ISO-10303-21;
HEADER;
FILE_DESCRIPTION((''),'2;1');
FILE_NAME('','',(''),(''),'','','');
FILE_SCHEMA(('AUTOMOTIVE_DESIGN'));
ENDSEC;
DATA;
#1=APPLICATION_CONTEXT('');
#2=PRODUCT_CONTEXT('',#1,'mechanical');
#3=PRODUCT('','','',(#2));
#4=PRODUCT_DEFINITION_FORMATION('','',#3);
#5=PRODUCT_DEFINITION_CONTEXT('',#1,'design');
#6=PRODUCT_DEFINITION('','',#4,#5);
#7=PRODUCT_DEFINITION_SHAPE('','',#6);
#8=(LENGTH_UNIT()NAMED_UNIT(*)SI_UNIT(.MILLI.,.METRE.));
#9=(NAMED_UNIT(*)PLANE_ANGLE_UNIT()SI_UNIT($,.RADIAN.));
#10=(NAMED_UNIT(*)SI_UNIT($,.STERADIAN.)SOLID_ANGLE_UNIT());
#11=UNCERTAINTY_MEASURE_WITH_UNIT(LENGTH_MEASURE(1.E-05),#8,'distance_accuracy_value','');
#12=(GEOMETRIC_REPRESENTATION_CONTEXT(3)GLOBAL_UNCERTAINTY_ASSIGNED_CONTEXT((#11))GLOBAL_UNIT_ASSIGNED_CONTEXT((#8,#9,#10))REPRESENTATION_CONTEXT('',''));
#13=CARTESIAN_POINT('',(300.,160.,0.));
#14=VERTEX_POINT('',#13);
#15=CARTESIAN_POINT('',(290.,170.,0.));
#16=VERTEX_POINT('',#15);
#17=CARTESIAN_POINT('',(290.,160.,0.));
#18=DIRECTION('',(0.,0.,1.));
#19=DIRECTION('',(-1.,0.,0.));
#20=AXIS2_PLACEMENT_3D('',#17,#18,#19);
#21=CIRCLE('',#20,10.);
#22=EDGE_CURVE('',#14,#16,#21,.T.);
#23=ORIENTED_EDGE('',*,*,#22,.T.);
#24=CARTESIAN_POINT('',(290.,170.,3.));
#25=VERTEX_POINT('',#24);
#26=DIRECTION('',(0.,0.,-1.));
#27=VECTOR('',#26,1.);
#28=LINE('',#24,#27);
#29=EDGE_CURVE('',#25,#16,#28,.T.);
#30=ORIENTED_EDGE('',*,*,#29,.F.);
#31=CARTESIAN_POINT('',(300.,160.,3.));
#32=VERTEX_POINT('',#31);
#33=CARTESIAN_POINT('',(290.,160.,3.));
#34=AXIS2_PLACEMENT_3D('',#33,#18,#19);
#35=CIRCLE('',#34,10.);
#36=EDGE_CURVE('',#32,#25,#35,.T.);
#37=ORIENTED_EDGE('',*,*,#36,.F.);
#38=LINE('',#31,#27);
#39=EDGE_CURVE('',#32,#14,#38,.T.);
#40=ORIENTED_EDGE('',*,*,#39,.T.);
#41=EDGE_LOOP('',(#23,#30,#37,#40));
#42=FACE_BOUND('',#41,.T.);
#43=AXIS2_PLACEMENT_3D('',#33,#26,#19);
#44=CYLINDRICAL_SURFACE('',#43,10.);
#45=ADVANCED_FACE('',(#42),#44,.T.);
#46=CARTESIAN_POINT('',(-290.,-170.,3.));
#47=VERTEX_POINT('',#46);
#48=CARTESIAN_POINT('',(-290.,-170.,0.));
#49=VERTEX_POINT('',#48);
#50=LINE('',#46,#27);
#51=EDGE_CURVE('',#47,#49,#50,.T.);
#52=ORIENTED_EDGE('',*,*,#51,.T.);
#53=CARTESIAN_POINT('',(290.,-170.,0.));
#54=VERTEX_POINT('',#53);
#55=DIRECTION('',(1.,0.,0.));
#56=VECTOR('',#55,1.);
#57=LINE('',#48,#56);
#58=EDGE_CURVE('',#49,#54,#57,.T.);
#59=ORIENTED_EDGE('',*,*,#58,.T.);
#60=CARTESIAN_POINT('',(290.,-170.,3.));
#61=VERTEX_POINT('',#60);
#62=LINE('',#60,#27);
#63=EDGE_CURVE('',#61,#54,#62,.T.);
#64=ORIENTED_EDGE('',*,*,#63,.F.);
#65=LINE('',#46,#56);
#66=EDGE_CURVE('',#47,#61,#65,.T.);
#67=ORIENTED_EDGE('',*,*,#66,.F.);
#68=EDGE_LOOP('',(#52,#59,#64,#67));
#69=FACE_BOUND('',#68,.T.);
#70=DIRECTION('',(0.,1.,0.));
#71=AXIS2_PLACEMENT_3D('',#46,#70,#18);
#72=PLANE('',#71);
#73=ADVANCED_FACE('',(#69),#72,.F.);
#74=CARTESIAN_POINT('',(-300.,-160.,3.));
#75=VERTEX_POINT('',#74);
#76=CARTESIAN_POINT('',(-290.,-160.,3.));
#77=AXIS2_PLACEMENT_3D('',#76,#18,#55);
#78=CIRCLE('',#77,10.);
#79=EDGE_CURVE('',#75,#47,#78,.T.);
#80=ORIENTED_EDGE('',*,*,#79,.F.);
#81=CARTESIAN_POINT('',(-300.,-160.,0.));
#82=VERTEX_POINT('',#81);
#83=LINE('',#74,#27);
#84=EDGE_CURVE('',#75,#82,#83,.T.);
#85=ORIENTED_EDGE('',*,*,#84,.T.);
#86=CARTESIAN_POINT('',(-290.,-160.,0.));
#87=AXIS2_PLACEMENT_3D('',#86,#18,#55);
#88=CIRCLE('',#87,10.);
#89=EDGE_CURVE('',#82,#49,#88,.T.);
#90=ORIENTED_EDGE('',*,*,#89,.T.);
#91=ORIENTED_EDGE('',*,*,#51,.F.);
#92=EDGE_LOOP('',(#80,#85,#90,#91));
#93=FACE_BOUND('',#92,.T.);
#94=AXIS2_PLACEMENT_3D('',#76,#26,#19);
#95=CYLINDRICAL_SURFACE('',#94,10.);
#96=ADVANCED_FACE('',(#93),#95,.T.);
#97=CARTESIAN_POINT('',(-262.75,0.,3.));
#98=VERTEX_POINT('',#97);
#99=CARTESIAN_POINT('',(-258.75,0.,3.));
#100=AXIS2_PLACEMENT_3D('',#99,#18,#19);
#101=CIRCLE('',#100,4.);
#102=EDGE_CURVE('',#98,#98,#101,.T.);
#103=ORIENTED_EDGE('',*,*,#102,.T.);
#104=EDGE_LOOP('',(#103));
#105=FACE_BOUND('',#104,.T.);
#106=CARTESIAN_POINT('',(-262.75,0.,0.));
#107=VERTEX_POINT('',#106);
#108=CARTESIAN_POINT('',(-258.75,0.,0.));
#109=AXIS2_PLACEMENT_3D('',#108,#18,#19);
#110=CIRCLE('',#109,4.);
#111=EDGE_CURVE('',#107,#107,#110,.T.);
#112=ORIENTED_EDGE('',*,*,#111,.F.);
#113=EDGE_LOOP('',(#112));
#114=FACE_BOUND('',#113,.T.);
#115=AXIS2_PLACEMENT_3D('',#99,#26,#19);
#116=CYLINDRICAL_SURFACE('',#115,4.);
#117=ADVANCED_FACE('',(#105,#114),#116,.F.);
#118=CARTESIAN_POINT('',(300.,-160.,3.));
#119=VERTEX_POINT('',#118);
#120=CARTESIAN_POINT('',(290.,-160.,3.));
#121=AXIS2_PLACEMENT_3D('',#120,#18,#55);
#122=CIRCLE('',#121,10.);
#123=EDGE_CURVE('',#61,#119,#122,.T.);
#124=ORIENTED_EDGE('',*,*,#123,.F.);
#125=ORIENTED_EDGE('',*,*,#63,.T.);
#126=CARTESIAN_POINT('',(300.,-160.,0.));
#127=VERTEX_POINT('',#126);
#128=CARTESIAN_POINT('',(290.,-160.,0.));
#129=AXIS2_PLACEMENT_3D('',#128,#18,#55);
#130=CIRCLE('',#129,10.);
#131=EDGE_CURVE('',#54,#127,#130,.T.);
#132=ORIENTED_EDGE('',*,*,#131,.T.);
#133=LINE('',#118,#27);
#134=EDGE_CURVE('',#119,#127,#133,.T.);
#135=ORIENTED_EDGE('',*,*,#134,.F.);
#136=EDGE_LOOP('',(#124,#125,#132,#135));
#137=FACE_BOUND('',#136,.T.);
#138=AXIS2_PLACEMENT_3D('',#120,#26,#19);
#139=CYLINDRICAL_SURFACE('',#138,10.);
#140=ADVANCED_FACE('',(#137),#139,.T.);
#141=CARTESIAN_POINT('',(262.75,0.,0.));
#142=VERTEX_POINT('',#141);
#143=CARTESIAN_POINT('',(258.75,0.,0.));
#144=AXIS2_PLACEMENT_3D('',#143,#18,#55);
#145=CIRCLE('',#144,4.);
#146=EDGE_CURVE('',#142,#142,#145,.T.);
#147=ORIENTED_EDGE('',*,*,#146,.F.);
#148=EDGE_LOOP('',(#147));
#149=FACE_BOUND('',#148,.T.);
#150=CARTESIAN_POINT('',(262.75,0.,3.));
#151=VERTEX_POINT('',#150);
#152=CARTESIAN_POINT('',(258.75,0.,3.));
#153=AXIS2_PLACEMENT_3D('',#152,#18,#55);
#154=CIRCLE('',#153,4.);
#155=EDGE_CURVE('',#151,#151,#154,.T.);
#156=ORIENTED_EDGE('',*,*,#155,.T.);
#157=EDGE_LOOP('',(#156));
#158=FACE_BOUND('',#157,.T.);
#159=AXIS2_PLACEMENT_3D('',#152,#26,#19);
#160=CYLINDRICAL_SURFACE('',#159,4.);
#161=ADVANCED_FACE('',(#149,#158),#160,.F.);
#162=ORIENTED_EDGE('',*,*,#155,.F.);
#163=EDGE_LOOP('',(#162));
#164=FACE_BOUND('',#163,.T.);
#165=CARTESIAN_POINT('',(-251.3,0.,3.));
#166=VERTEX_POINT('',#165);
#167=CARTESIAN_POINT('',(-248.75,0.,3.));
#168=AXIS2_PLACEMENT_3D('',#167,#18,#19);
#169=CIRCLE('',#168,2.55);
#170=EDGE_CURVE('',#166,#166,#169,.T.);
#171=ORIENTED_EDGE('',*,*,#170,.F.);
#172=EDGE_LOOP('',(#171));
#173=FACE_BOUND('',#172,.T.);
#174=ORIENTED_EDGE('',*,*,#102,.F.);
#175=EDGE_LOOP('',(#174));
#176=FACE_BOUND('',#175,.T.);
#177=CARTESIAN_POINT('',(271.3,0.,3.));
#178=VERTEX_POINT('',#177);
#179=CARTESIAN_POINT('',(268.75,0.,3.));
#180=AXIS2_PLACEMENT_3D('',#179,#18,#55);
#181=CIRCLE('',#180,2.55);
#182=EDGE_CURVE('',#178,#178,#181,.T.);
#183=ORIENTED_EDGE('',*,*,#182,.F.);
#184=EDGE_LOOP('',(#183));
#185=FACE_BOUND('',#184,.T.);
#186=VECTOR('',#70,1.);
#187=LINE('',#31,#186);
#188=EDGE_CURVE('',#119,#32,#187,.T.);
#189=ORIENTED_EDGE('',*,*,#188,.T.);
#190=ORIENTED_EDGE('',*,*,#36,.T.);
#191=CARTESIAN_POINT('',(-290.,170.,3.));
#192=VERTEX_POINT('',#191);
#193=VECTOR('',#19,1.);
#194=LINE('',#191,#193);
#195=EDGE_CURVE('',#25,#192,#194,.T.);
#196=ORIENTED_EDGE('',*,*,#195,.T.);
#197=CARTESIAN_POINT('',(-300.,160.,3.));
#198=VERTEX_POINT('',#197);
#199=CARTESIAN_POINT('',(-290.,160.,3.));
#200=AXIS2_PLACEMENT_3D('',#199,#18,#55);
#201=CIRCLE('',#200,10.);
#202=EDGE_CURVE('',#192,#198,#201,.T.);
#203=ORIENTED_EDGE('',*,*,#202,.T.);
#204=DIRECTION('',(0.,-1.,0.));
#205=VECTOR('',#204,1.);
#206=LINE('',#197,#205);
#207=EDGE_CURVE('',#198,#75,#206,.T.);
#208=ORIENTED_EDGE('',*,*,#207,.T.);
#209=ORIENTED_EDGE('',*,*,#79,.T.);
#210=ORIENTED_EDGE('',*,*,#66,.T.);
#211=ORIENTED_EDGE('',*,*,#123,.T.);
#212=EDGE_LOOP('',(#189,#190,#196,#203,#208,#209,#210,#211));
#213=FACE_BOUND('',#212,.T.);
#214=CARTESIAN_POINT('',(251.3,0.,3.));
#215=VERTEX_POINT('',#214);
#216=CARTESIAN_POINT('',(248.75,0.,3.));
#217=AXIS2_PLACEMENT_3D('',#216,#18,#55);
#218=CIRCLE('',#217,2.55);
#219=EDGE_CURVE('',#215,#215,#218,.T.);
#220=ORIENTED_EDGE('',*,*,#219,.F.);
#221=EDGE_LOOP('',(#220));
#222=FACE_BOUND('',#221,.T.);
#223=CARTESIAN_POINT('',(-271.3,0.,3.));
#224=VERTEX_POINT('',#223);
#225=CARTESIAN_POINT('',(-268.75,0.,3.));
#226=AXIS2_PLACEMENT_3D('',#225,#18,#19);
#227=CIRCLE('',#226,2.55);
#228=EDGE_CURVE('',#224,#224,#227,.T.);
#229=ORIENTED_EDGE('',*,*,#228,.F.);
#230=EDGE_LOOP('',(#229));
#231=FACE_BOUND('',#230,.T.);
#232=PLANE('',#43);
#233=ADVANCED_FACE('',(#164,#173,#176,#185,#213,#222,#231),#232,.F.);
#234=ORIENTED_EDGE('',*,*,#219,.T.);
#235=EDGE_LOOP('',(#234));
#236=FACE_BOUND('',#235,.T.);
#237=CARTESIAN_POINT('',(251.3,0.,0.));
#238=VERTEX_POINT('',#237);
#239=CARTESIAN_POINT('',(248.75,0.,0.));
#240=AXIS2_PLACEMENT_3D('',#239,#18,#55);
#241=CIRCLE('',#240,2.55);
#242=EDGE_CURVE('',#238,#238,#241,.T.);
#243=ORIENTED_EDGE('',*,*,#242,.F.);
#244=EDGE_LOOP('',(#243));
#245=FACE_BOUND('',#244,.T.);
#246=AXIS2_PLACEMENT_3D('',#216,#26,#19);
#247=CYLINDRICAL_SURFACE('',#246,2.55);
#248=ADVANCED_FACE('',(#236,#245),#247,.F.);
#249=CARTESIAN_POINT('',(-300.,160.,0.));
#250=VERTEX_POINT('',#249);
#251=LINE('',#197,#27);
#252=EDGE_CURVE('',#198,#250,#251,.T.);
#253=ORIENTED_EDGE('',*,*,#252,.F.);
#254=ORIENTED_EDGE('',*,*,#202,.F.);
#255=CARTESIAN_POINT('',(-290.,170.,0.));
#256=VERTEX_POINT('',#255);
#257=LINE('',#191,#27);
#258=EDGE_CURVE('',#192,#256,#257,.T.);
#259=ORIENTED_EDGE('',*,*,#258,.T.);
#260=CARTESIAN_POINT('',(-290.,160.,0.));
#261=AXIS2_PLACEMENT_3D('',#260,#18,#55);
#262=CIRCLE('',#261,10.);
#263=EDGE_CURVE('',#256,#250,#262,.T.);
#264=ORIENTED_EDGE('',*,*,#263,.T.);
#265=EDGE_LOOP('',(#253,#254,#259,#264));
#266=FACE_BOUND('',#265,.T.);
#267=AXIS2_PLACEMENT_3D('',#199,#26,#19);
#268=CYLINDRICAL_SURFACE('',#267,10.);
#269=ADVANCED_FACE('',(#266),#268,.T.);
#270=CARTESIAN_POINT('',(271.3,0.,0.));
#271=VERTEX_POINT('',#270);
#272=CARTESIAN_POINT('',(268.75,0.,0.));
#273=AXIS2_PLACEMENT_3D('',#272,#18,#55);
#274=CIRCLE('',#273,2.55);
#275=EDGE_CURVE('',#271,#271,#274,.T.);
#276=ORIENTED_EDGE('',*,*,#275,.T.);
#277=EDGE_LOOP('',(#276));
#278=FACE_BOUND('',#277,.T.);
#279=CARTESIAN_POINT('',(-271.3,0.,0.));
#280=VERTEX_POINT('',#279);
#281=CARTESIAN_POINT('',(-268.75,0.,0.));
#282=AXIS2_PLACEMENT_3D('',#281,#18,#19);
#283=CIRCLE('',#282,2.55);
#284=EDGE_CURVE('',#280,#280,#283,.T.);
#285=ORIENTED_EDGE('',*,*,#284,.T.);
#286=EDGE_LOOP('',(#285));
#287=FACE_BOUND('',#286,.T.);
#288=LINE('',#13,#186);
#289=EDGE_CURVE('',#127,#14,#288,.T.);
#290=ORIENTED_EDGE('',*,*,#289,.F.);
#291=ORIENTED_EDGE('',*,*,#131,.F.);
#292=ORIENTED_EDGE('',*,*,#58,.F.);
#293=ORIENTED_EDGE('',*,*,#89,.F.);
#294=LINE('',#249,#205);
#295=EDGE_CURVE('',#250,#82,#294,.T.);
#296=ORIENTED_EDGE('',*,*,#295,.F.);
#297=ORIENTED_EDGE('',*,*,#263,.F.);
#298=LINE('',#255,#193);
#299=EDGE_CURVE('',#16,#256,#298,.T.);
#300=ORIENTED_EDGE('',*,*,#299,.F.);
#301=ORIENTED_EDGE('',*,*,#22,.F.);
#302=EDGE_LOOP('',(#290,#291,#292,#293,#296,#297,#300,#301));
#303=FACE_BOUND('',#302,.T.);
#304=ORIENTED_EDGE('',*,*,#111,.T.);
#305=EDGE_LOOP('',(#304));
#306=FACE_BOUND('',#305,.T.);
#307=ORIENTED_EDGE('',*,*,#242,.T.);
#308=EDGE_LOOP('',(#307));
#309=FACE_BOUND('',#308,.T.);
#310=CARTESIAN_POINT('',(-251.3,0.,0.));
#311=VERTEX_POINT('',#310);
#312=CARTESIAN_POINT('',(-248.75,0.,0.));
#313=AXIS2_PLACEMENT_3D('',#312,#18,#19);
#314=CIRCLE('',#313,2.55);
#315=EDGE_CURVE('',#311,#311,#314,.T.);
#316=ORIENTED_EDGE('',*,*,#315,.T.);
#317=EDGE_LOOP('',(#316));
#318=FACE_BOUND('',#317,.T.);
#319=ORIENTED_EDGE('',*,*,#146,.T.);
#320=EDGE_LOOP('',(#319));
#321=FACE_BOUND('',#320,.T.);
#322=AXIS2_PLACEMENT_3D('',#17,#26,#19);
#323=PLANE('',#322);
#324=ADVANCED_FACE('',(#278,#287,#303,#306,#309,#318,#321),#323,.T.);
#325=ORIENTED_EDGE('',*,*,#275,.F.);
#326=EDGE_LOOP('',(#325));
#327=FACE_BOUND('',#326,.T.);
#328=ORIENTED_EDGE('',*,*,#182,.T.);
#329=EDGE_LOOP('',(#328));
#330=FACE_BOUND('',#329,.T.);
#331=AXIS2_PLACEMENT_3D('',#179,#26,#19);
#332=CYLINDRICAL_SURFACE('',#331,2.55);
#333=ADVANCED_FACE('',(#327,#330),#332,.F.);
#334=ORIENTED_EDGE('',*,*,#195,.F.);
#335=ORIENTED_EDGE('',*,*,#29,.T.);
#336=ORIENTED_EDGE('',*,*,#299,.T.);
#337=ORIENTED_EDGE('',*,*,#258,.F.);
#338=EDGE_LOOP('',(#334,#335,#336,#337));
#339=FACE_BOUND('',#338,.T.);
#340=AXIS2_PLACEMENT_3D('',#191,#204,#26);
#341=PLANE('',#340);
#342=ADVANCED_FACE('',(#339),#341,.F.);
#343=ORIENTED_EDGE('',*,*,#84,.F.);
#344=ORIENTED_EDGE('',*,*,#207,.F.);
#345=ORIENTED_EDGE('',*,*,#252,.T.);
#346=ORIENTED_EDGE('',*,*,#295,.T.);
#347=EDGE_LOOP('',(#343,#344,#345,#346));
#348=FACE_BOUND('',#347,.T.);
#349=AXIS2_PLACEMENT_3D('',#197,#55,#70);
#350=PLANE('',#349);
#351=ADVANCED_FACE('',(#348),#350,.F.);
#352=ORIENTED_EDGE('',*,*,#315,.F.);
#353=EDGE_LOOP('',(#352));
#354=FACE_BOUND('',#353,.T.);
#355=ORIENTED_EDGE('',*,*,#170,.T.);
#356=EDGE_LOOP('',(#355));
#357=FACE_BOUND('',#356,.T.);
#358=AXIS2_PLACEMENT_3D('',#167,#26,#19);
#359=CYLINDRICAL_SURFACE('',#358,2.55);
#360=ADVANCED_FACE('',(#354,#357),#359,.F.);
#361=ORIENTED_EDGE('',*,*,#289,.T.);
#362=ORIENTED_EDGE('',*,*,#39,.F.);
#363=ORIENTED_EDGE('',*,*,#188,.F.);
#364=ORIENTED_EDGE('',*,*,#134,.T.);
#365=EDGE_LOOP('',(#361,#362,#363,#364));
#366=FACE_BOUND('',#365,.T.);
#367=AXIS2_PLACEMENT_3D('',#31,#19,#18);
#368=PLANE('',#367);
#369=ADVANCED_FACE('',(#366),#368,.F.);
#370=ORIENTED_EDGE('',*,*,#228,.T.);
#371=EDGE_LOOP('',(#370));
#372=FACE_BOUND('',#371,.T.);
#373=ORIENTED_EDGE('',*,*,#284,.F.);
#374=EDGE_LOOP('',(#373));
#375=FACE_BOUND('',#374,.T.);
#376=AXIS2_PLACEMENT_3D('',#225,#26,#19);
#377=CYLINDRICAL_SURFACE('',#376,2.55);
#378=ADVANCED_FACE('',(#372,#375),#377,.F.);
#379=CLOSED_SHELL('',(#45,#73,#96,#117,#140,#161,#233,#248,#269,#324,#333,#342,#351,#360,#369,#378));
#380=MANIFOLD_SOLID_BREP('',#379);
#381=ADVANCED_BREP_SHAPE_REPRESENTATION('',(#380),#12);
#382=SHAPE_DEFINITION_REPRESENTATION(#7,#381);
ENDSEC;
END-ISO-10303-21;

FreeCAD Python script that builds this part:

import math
import FreeCAD as App
import Part
import Sketcher
from FreeCAD import Vector
Q = App.Units.Quantity

doc = App.newDocument("Part")
params = doc.addObject("Spreadsheet::Sheet", "Params")
for row, (alias, value) in enumerate([
    ("sketch1_diameter", "8 mm"),
    ("sketch1_radius", "10 mm"),
    ("sketch1_diameter2", "5.1 mm"),
    ("sketch1_width", "580 mm"),
    ("sketch1_height", "320 mm"),
    ("pad1_length", "3 mm"),
], start=1):
    params.set(f"A{row}", alias)
    params.set(f"B{row}", "=" + value)
    params.setAlias(f"B{row}", alias)

body = doc.addObject("PartDesign::Body", "Body")

# Sketch on XY plane
sketch1 = body.newObject("Sketcher::SketchObject", "Sketch")
sketch1.AttachmentSupport = (doc.getObject("XY_Plane"), [""])
sketch1.MapMode = "FlatFace"
sketch1.addGeometry(Part.LineSegment(Vector(290, 170, 0), Vector(-290, 170, 0)), False)
sketch1.addGeometry(Part.ArcOfCircle(Part.Circle(Vector(-290, 160, 0), Vector(0, 0, 1), 10), math.radians(90), math.radians(180)), False)
sketch1.addGeometry(Part.LineSegment(Vector(-300, 160, 0), Vector(-300, -160, 0)), False)
sketch1.addGeometry(Part.ArcOfCircle(Part.Circle(Vector(-290, -160, 0), Vector(0, 0, 1), 10), math.radians(180), math.radians(270)), False)
sketch1.addGeometry(Part.LineSegment(Vector(-290, -170, 0), Vector(290, -170, 0)), False)
sketch1.addGeometry(Part.ArcOfCircle(Part.Circle(Vector(290, -160, 0), Vector(0, 0, 1), 10), math.radians(-90), math.radians(0)), False)
sketch1.addGeometry(Part.LineSegment(Vector(300, -160, 0), Vector(300, 160, 0)), False)
sketch1.addGeometry(Part.ArcOfCircle(Part.Circle(Vector(290, 160, 0), Vector(0, 0, 1), 10), math.radians(0), math.radians(90)), False)
sketch1.addGeometry(Part.Circle(Vector(268.8, 0, 0), Vector(0, 0, 1), 2.5), False)
sketch1.addGeometry(Part.Circle(Vector(258.8, 0, 0), Vector(0, 0, 1), 4), False)
sketch1.addGeometry(Part.Circle(Vector(248.8, 0, 0), Vector(0, 0, 1), 2.5), False)
sketch1.addGeometry(Part.Circle(Vector(-248.8, 0, 0), Vector(0, 0, 1), 2.5), False)
sketch1.addGeometry(Part.Circle(Vector(-258.8, 0, 0), Vector(0, 0, 1), 4), False)
sketch1.addGeometry(Part.Circle(Vector(-268.8, 0, 0), Vector(0, 0, 1), 2.5), False)
sketch1.addConstraint(Sketcher.Constraint("Tangent", 0, 2, 1, 1))
sketch1.addConstraint(Sketcher.Constraint("Tangent", 1, 2, 2, 1))
sketch1.addConstraint(Sketcher.Constraint("Tangent", 2, 2, 3, 1))
sketch1.addConstraint(Sketcher.Constraint("Tangent", 3, 2, 4, 1))
sketch1.addConstraint(Sketcher.Constraint("Tangent", 4, 2, 5, 1))
sketch1.addConstraint(Sketcher.Constraint("Tangent", 5, 2, 6, 1))
sketch1.addConstraint(Sketcher.Constraint("Tangent", 6, 2, 7, 1))
sketch1.addConstraint(Sketcher.Constraint("Tangent", 7, 2, 0, 1))
sketch1.addConstraint(Sketcher.Constraint("Horizontal", 0))
sketch1.addConstraint(Sketcher.Constraint("Vertical", 2))
sketch1.addConstraint(Sketcher.Constraint("Horizontal", 4))
sketch1.addConstraint(Sketcher.Constraint("Vertical", 6))
sketch1.addConstraint(Sketcher.Constraint("Equal", 1, 3))
sketch1.addConstraint(Sketcher.Constraint("Equal", 3, 5))
sketch1.addConstraint(Sketcher.Constraint("Equal", 5, 7))
sketch1.addConstraint(Sketcher.Constraint("Equal", 8, 10))
sketch1.addConstraint(Sketcher.Constraint("Equal", 10, 11))
sketch1.addConstraint(Sketcher.Constraint("Equal", 9, 12))
sketch1.addConstraint(Sketcher.Constraint("Equal", 11, 13))
sketch1.addConstraint(Sketcher.Constraint("Symmetric", 1, 3, 5, 3, -1, 1))
sketch1.addConstraint(Sketcher.Constraint("Symmetric", 10, 3, 11, 3, -1, 1))
sketch1.addConstraint(Sketcher.Constraint("Symmetric", 9, 3, 12, 3, -1, 1))
sketch1.addConstraint(Sketcher.Constraint("Symmetric", 8, 3, 13, 3, -1, 1))
sketch1.addConstraint(Sketcher.Constraint("PointOnObject", 8, 3, -1))
sketch1.addConstraint(Sketcher.Constraint("PointOnObject", 9, 3, -1))
sketch1.addConstraint(Sketcher.Constraint("PointOnObject", 10, 3, -1))
sketch1.addConstraint(Sketcher.Constraint("Diameter", 9, Q("8 mm")))
sketch1.addConstraint(Sketcher.Constraint("Radius", 1, Q("10 mm")))
sketch1.addConstraint(Sketcher.Constraint("Diameter", 8, Q("5.1 mm")))
sketch1.addConstraint(Sketcher.Constraint("DistanceX", 0, 2, 0, 1, Q("580 mm")))
sketch1.addConstraint(Sketcher.Constraint("DistanceY", 2, 2, 2, 1, Q("320 mm")))
sketch1.addConstraint(Sketcher.Constraint("DistanceX", 9, 3, 8, 3, Q("10 mm")))
sketch1.addConstraint(Sketcher.Constraint("DistanceX", 10, 3, 9, 3, Q("10 mm")))
sketch1.addConstraint(Sketcher.Constraint("DistanceX", 11, 3, 10, 3, Q("497.5 mm")))
sketch1.setExpression("Constraints[26]", "Params.sketch1_diameter")
sketch1.setExpression("Constraints[27]", "Params.sketch1_radius")
sketch1.setExpression("Constraints[28]", "Params.sketch1_diameter2")
sketch1.setExpression("Constraints[29]", "Params.sketch1_width")
sketch1.setExpression("Constraints[30]", "Params.sketch1_height")
pad1 = body.newObject("PartDesign::Pad", "Pad")
pad1.Profile = sketch1
pad1.setExpression("Length", "Params.pad1_length")

doc.recompute()
